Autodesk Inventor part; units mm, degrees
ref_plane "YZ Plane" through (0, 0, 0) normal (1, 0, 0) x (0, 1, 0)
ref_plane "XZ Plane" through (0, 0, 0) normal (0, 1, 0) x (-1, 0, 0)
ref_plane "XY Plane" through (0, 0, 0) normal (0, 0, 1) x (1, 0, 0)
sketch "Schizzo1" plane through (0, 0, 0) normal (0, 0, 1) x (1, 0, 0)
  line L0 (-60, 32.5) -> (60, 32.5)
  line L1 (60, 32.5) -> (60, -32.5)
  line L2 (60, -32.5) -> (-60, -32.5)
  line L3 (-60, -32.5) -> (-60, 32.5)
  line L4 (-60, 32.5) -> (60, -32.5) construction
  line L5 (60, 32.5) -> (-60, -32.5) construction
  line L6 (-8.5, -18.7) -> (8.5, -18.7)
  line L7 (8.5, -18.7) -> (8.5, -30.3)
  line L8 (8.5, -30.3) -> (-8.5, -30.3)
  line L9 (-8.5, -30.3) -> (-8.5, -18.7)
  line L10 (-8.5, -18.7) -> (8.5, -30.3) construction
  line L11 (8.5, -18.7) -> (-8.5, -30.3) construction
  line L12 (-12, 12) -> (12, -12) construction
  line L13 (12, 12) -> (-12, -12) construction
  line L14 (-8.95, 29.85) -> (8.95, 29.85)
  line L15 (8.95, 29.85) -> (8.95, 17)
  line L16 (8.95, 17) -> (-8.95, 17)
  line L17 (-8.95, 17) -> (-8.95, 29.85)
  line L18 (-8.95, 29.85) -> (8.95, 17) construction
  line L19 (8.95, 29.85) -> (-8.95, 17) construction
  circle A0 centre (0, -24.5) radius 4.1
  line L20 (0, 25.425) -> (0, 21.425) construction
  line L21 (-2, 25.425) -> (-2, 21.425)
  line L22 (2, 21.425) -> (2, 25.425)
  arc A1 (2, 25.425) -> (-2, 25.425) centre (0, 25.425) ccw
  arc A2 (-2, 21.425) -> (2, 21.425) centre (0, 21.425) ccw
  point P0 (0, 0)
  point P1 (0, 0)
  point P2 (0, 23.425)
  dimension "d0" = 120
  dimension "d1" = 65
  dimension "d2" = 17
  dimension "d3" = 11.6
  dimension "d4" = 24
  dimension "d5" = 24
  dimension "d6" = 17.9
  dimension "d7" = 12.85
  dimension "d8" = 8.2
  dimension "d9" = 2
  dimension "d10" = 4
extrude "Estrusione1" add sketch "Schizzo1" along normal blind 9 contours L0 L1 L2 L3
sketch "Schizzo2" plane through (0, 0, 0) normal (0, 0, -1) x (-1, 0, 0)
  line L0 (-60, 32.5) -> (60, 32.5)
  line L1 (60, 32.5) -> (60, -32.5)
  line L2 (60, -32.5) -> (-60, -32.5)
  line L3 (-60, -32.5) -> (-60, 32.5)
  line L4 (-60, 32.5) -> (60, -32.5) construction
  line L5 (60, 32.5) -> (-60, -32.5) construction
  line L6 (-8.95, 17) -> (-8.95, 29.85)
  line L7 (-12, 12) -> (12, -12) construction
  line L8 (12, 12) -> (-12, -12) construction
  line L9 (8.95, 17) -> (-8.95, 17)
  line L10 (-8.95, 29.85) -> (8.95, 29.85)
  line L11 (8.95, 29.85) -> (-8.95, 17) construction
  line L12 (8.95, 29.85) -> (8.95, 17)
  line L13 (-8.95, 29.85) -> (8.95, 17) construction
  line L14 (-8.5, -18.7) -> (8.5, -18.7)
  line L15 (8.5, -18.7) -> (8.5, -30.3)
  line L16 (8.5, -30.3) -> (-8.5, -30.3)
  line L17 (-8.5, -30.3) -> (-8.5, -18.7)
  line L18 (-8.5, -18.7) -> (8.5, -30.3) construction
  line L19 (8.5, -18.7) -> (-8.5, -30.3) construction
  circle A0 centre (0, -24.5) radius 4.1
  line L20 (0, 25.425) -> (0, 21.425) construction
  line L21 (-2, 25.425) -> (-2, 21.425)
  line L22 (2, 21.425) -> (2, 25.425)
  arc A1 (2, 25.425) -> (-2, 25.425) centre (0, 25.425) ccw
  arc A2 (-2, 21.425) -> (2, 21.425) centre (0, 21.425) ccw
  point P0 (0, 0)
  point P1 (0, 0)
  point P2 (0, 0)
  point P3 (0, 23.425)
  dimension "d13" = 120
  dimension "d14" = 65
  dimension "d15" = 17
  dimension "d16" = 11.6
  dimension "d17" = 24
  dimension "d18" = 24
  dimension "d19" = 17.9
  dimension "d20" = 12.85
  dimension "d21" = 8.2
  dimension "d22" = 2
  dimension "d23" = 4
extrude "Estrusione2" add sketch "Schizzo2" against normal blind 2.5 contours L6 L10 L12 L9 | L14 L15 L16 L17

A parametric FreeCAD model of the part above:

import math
import FreeCAD as App
import Part
import Sketcher

doc = App.newDocument("Part")
body = doc.addObject("PartDesign::Body", "Body")

# Sketch on XY plane
sketch1 = body.newObject("Sketcher::SketchObject", "Sketch")
sketch1.AttachmentSupport = (doc.getObject("XY_Plane"), [""])
sketch1.MapMode = "FlatFace"
sketch1.addGeometry([
    Part.LineSegment(App.Vector(60, 32, 0), App.Vector(-60, 32, 0)),  # 0
    Part.LineSegment(App.Vector(-60, 32, 0), App.Vector(-60, -32, 0)),  # 1
    Part.LineSegment(App.Vector(-60, -32, 0), App.Vector(60, -32, 0)),  # 2
    Part.LineSegment(App.Vector(60, -32, 0), App.Vector(60, 32, 0)),  # 3
    Part.LineSegment(App.Vector(-8, -30, 0), App.Vector(-8, -19, 0)),  # 4
    Part.LineSegment(App.Vector(-8, -19, 0), App.Vector(8, -19, 0)),  # 5
    Part.LineSegment(App.Vector(8, -19, 0), App.Vector(8, -30, 0)),  # 6
    Part.LineSegment(App.Vector(8, -30, 0), App.Vector(-8, -30, 0)),  # 7
    Part.LineSegment(App.Vector(-9, 17, 0), App.Vector(-9, 30, 0)),  # 8
    Part.LineSegment(App.Vector(-9, 30, 0), App.Vector(9, 30, 0)),  # 9
    Part.LineSegment(App.Vector(9, 30, 0), App.Vector(9, 17, 0)),  # 10
    Part.LineSegment(App.Vector(9, 17, 0), App.Vector(-9, 17, 0)),  # 11
], False)
sketch1.addConstraint([
    Sketcher.Constraint("Coincident", 0, 2, 1, 1),
    Sketcher.Constraint("Coincident", 1, 2, 2, 1),
    Sketcher.Constraint("Coincident", 2, 2, 3, 1),
    Sketcher.Constraint("Coincident", 3, 2, 0, 1),
    Sketcher.Constraint("Coincident", 4, 2, 5, 1),
    Sketcher.Constraint("Coincident", 5, 2, 6, 1),
    Sketcher.Constraint("Coincident", 6, 2, 7, 1),
    Sketcher.Constraint("Coincident", 7, 2, 4, 1),
    Sketcher.Constraint("Coincident", 8, 2, 9, 1),
    Sketcher.Constraint("Coincident", 9, 2, 10, 1),
    Sketcher.Constraint("Coincident", 10, 2, 11, 1),
    Sketcher.Constraint("Coincident", 11, 2, 8, 1),
    Sketcher.Constraint("Horizontal", 0),
    Sketcher.Constraint("Vertical", 1),
    Sketcher.Constraint("Horizontal", 2),
    Sketcher.Constraint("Vertical", 3),
    Sketcher.Constraint("Vertical", 4),
    Sketcher.Constraint("Horizontal", 5),
    Sketcher.Constraint("Vertical", 6),
    Sketcher.Constraint("Horizontal", 7),
    Sketcher.Constraint("Vertical", 8),
    Sketcher.Constraint("Horizontal", 9),
    Sketcher.Constraint("Vertical", 10),
    Sketcher.Constraint("Horizontal", 11),
    Sketcher.Constraint("Symmetric", 0, 2, 2, 2, -1, 1),
    Sketcher.Constraint("DistanceX", 0, 2, 0, 1, 120.0),
    Sketcher.Constraint("DistanceX", 5, 1, 5, 2, 17.0),
    Sketcher.Constraint("DistanceY", 1, 2, 1, 1, 65.0),
    Sketcher.Constraint("DistanceX", 9, 1, 9, 2, 17.9),
    Sketcher.Constraint("DistanceY", 4, 1, 4, 2, 11.6),
    Sketcher.Constraint("DistanceY", -1, 1, 10, 2, 17.0),
    Sketcher.Constraint("DistanceY", 8, 1, 8, 2, 12.85),
    Sketcher.Constraint("DistanceX", 4, 2, -1, 1, 8.5),
    Sketcher.Constraint("DistanceY", 4, 2, -1, 1, 18.7),
    Sketcher.Constraint("DistanceX", 8, 2, -1, 1, 8.95),
])
pad1 = body.newObject("PartDesign::Pad", "Pad")
pad1.Profile = sketch1
pad1.Length = 9

# Sketch on XY plane
sketch2 = body.newObject("Sketcher::SketchObject", "Sketch001")
sketch2.AttachmentSupport = (doc.getObject("XY_Plane"), [""])
sketch2.MapMode = "FlatFace"
sketch2.addGeometry([
    Part.LineSegment(App.Vector(8.9, 29.9, 0), App.Vector(8.9, 17, 0)),  # 0
    Part.LineSegment(App.Vector(8.9, 17, 0), App.Vector(-8.9, 17, 0)),  # 1
    Part.LineSegment(App.Vector(-8.9, 17, 0), App.Vector(-8.9, 29.9, 0)),  # 2
    Part.LineSegment(App.Vector(-8.9, 29.9, 0), App.Vector(8.9, 29.9, 0)),  # 3
    Part.LineSegment(App.Vector(2, 21.4, 0), App.Vector(2, 25.4, 0)),  # 4
    Part.ArcOfCircle(Part.Circle(App.Vector(0, 25.4, 0), App.Vector(0, 0, 1), 2), math.radians(0), math.radians(180)),  # 5
    Part.LineSegment(App.Vector(-2, 25.4, 0), App.Vector(-2, 21.4, 0)),  # 6
    Part.ArcOfCircle(Part.Circle(App.Vector(0, 21.4, 0), App.Vector(0, 0, 1), 2), math.radians(180), math.radians(360)),  # 7
    Part.LineSegment(App.Vector(-8.5, -18.7, 0), App.Vector(8.5, -18.7, 0)),  # 8
    Part.LineSegment(App.Vector(8.5, -18.7, 0), App.Vector(8.5, -30.3, 0)),  # 9
    Part.LineSegment(App.Vector(8.5, -30.3, 0), App.Vector(-8.5, -30.3, 0)),  # 10
    Part.LineSegment(App.Vector(-8.5, -30.3, 0), App.Vector(-8.5, -18.7, 0)),  # 11
    Part.Circle(App.Vector(0, -24.5, 0), App.Vector(0, 0, 1), 4.1),  # 12
], False)
sketch2.addConstraint([
    Sketcher.Constraint("Coincident", 0, 2, 1, 1),
    Sketcher.Constraint("Coincident", 1, 2, 2, 1),
    Sketcher.Constraint("Coincident", 2, 2, 3, 1),
    Sketcher.Constraint("Coincident", 3, 2, 0, 1),
    Sketcher.Constraint("Tangent", 4, 2, 5, 1),
    Sketcher.Constraint("Tangent", 5, 2, 6, 1),
    Sketcher.Constraint("Tangent", 6, 2, 7, 1),
    Sketcher.Constraint("Tangent", 7, 2, 4, 1),
    Sketcher.Constraint("Coincident", 8, 2, 9, 1),
    Sketcher.Constraint("Coincident", 9, 2, 10, 1),
    Sketcher.Constraint("Coincident", 10, 2, 11, 1),
    Sketcher.Constraint("Coincident", 11, 2, 8, 1),
    Sketcher.Constraint("Vertical", 0),
    Sketcher.Constraint("Horizontal", 1),
    Sketcher.Constraint("Vertical", 2),
    Sketcher.Constraint("Horizontal", 3),
    Sketcher.Constraint("Vertical", 4),
    Sketcher.Constraint("Vertical", 6),
    Sketcher.Constraint("Horizontal", 8),
    Sketcher.Constraint("Vertical", 9),
    Sketcher.Constraint("Horizontal", 10),
    Sketcher.Constraint("Vertical", 11),
    Sketcher.Constraint("PointOnObject", 5, 3, -2),
    Sketcher.Constraint("PointOnObject", 12, 3, -2),
    Sketcher.Constraint("Radius", 5, 2.0),
    Sketcher.Constraint("Diameter", 12, 8.2),
    Sketcher.Constraint("DistanceX", 8, 1, 8, 2, 17.0),
    Sketcher.Constraint("DistanceY", 4, 1, 4, 2, 4.0),
    Sketcher.Constraint("DistanceX", 1, 2, 1, 1, 17.9),
    Sketcher.Constraint("DistanceY", 9, 2, 9, 1, 11.6),
    Sketcher.Constraint("DistanceY", -1, 1, 0, 2, 17.0),
    Sketcher.Constraint("DistanceY", 0, 2, 0, 1, 12.85),
    Sketcher.Constraint("DistanceY", 12, 3, -1, 1, 24.5),
    Sketcher.Constraint("DistanceX", -1, 1, 8, 2, 8.5),
    Sketcher.Constraint("DistanceY", 8, 2, -1, 1, 18.7),
    Sketcher.Constraint("DistanceX", -1, 1, 0, 2, 8.95),
    Sketcher.Constraint("DistanceY", -1, 1, 5, 3, 25.425),
])
pad2 = body.newObject("PartDesign::Pad", "Pad001")
pad2.Profile = sketch2
pad2.Length = 2.5

doc.recompute()
